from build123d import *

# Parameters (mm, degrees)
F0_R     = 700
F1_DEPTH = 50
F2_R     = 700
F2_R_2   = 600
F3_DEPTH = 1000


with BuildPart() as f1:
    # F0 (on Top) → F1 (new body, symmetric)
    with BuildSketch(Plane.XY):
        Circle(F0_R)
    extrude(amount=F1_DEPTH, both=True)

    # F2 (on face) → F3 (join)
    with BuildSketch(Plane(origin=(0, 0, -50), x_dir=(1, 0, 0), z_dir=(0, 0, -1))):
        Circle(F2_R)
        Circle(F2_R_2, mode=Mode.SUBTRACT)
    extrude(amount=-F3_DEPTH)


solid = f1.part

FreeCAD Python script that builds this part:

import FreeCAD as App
import Part
import Sketcher

V = App.Vector
Q = App.Units.Quantity

doc = App.newDocument("Part")
params = doc.addObject("Spreadsheet::Sheet", "Params")
for row, (alias, value) in enumerate([
    ("sketch1_diameter", "1400 mm"),
    ("pad1_length", "100 mm"),
    ("sketch2_diameter", "1400 mm"),
    ("sketch2_diameter2", "1200 mm"),
    ("pad2_length", "1000 mm"),
], start=1):
    params.set(f"A{row}", alias)
    params.set(f"B{row}", "=" + value)
    params.setAlias(f"B{row}", alias)

body = doc.addObject("PartDesign::Body", "Body")

# Sketch on XY plane
sketch1 = body.newObject("Sketcher::SketchObject", "Sketch")
sketch1.AttachmentSupport = (doc.getObject("XY_Plane"), [""])
sketch1.MapMode = "FlatFace"
sketch1.addGeometry(Part.Circle(V(0, 0, 0), V(0, 0, 1), 700), False)
sketch1.addConstraint([
    Sketcher.Constraint("Coincident", 0, 3, -1, 1),
    Sketcher.Constraint("Diameter", 0, Q("1400 mm")),
])
sketch1.setExpression("Constraints[1]", "Params.sketch1_diameter")
pad1 = body.newObject("PartDesign::Pad", "Pad")
pad1.Profile = sketch1
pad1.setExpression("Length", "Params.pad1_length")
pad1.Midplane = True

# Sketch on XY plane
sketch2 = body.newObject("Sketcher::SketchObject", "Sketch001")
sketch2.AttachmentSupport = (doc.getObject("XY_Plane"), [""])
sketch2.MapMode = "FlatFace"
sketch2.AttachmentOffset = App.Placement(V(0, 0, -50), App.Rotation())
sketch2.addGeometry([
    Part.Circle(V(0, 0, 0), V(0, 0, 1), 700),
    Part.Circle(V(0, 0, 0), V(0, 0, 1), 600),
], False)
sketch2.addConstraint([
    Sketcher.Constraint("Coincident", 0, 3, -1, 1),
    Sketcher.Constraint("Coincident", 1, 3, -1, 1),
    Sketcher.Constraint("Diameter", 0, Q("1400 mm")),
    Sketcher.Constraint("Diameter", 1, Q("1200 mm")),
])
sketch2.setExpression("Constraints[2]", "Params.sketch2_diameter")
sketch2.setExpression("Constraints[3]", "Params.sketch2_diameter2")
pad2 = body.newObject("PartDesign::Pad", "Pad001")
pad2.Profile = sketch2
pad2.setExpression("Length", "Params.pad2_length")

doc.recompute()
